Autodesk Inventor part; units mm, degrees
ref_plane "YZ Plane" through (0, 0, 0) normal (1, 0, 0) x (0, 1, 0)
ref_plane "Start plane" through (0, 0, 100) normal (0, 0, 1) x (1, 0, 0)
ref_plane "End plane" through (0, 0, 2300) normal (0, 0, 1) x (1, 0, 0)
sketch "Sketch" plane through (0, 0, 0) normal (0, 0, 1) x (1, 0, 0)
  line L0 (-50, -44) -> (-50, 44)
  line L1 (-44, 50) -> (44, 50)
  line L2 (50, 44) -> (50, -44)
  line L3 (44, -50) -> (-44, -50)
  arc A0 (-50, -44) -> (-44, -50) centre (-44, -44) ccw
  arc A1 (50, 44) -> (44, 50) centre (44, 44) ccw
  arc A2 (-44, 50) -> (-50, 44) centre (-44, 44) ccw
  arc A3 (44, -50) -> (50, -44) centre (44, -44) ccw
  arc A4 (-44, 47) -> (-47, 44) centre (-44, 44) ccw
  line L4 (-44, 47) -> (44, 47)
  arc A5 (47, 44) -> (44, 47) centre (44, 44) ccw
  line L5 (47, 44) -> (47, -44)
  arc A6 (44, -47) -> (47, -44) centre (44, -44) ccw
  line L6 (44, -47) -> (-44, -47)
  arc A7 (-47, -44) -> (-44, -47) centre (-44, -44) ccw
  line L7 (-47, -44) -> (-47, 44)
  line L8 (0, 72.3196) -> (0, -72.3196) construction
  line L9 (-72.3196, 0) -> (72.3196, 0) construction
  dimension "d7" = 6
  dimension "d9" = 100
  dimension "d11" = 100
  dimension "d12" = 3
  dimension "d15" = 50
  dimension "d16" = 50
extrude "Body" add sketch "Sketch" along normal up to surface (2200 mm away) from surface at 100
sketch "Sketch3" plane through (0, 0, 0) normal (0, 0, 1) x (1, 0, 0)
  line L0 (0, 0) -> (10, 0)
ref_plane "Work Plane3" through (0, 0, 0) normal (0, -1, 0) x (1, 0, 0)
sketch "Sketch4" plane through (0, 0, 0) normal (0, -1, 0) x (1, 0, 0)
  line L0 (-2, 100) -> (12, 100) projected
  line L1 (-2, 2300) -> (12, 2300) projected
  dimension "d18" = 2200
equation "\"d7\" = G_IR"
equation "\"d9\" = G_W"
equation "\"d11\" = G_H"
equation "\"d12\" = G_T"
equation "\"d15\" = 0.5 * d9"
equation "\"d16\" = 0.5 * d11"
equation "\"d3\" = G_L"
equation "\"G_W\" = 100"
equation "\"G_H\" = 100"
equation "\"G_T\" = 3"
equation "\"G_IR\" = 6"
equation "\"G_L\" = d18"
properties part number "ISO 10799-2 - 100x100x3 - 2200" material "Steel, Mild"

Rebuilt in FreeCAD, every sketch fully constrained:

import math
import FreeCAD as App
import Part
import Sketcher
from FreeCAD import Vector
Q = App.Units.Quantity

doc = App.newDocument("Part")
body = doc.addObject("PartDesign::Body", "Body")

# Sketch on XY plane
sketch1 = body.newObject("Sketcher::SketchObject", "Sketch")
sketch1.AttachmentSupport = (doc.getObject("XY_Plane"), [""])
sketch1.MapMode = "FlatFace"
sketch1.AttachmentOffset = App.Placement(Vector(0, 0, 100), App.Rotation())
sketch1.addGeometry(Part.LineSegment(Vector(-50, 44, 0), Vector(-50, -44, 0)), False)
sketch1.addGeometry(Part.ArcOfCircle(Part.Circle(Vector(-44, -44, 0), Vector(0, 0, 1), 6), math.radians(180), math.radians(270)), False)
sketch1.addGeometry(Part.LineSegment(Vector(-44, -50, 0), Vector(44, -50, 0)), False)
sketch1.addGeometry(Part.ArcOfCircle(Part.Circle(Vector(44, -44, 0), Vector(0, 0, 1), 6), math.radians(-90), math.radians(0)), False)
sketch1.addGeometry(Part.LineSegment(Vector(50, -44, 0), Vector(50, 44, 0)), False)
sketch1.addGeometry(Part.ArcOfCircle(Part.Circle(Vector(44, 44, 0), Vector(0, 0, 1), 6), math.radians(0), math.radians(90)), False)
sketch1.addGeometry(Part.LineSegment(Vector(44, 50, 0), Vector(-44, 50, 0)), False)
sketch1.addGeometry(Part.ArcOfCircle(Part.Circle(Vector(-44, 44, 0), Vector(0, 0, 1), 6), math.radians(90), math.radians(180)), False)
sketch1.addGeometry(Part.ArcOfCircle(Part.Circle(Vector(-44, 44, 0), Vector(0, 0, 1), 3), math.radians(90), math.radians(180)), False)
sketch1.addGeometry(Part.LineSegment(Vector(-44, 47, 0), Vector(44, 47, 0)), False)
sketch1.addGeometry(Part.ArcOfCircle(Part.Circle(Vector(44, 44, 0), Vector(0, 0, 1), 3), math.radians(0), math.radians(90)), False)
sketch1.addGeometry(Part.LineSegment(Vector(47, 44, 0), Vector(47, -44, 0)), False)
sketch1.addGeometry(Part.ArcOfCircle(Part.Circle(Vector(44, -44, 0), Vector(0, 0, 1), 3), math.radians(-90), math.radians(0)), False)
sketch1.addGeometry(Part.LineSegment(Vector(44, -47, 0), Vector(-44, -47, 0)), False)
sketch1.addGeometry(Part.ArcOfCircle(Part.Circle(Vector(-44, -44, 0), Vector(0, 0, 1), 3), math.radians(180), math.radians(270)), False)
sketch1.addGeometry(Part.LineSegment(Vector(-47, -44, 0), Vector(-47, 44, 0)), False)
sketch1.addConstraint(Sketcher.Constraint("Tangent", 0, 2, 1, 1))
sketch1.addConstraint(Sketcher.Constraint("Tangent", 1, 2, 2, 1))
sketch1.addConstraint(Sketcher.Constraint("Tangent", 2, 2, 3, 1))
sketch1.addConstraint(Sketcher.Constraint("Tangent", 3, 2, 4, 1))
sketch1.addConstraint(Sketcher.Constraint("Tangent", 4, 2, 5, 1))
sketch1.addConstraint(Sketcher.Constraint("Tangent", 5, 2, 6, 1))
sketch1.addConstraint(Sketcher.Constraint("Tangent", 6, 2, 7, 1))
sketch1.addConstraint(Sketcher.Constraint("Tangent", 7, 2, 0, 1))
sketch1.addConstraint(Sketcher.Constraint("Tangent", 8, 1, 9, 1))
sketch1.addConstraint(Sketcher.Constraint("Tangent", 9, 2, 10, 2))
sketch1.addConstraint(Sketcher.Constraint("Tangent", 10, 1, 11, 1))
sketch1.addConstraint(Sketcher.Constraint("Tangent", 11, 2, 12, 2))
sketch1.addConstraint(Sketcher.Constraint("Tangent", 12, 1, 13, 1))
sketch1.addConstraint(Sketcher.Constraint("Tangent", 13, 2, 14, 2))
sketch1.addConstraint(Sketcher.Constraint("Tangent", 14, 1, 15, 1))
sketch1.addConstraint(Sketcher.Constraint("Tangent", 15, 2, 8, 2))
sketch1.addConstraint(Sketcher.Constraint("Vertical", 0))
sketch1.addConstraint(Sketcher.Constraint("Horizontal", 2))
sketch1.addConstraint(Sketcher.Constraint("Vertical", 4))
sketch1.addConstraint(Sketcher.Constraint("Horizontal", 6))
sketch1.addConstraint(Sketcher.Constraint("Horizontal", 9))
sketch1.addConstraint(Sketcher.Constraint("Vertical", 11))
sketch1.addConstraint(Sketcher.Constraint("Horizontal", 13))
sketch1.addConstraint(Sketcher.Constraint("Vertical", 15))
sketch1.addConstraint(Sketcher.Constraint("Coincident", 8, 3, 7, 3))
sketch1.addConstraint(Sketcher.Constraint("Coincident", 10, 3, 5, 3))
sketch1.addConstraint(Sketcher.Constraint("Coincident", 12, 3, 3, 3))
sketch1.addConstraint(Sketcher.Constraint("Equal", 1, 3))
sketch1.addConstraint(Sketcher.Constraint("Equal", 3, 5))
sketch1.addConstraint(Sketcher.Constraint("Equal", 5, 7))
sketch1.addConstraint(Sketcher.Constraint("Equal", 12, 14))
sketch1.addConstraint(Sketcher.Constraint("Symmetric", 1, 3, 5, 3, -1, 1))
sketch1.addConstraint(Sketcher.Constraint("Equal", 13, 0))
sketch1.addConstraint(Sketcher.Constraint("Radius", 1, Q("6 mm")))
sketch1.addConstraint(Sketcher.Constraint("Radius", 8, Q("3 mm")))
sketch1.addConstraint(Sketcher.Constraint("DistanceX", 0, 2, -1, 1, Q("50 mm")))
pad1 = body.newObject("PartDesign::Pad", "Pad")
pad1.Profile = sketch1
pad1.Length = 2200

doc.recompute()
